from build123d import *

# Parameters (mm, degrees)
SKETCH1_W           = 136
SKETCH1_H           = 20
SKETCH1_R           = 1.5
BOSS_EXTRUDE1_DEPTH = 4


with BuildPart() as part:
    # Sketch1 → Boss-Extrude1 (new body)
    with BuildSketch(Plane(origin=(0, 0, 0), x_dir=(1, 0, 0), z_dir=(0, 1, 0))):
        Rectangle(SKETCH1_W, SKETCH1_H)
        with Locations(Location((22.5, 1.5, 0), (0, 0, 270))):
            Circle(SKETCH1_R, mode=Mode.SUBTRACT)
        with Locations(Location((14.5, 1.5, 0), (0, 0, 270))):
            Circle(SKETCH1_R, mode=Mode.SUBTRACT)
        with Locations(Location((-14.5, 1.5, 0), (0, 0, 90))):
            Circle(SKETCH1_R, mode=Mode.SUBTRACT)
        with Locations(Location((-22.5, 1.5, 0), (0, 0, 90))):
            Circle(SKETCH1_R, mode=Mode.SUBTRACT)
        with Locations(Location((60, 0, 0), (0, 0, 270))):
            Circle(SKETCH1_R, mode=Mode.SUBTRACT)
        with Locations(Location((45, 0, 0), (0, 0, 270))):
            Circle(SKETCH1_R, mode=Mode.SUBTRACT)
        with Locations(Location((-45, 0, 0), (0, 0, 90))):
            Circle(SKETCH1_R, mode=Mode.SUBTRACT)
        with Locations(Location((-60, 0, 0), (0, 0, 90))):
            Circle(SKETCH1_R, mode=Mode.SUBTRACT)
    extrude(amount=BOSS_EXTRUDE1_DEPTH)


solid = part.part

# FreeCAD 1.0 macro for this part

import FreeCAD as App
import Part
import Sketcher

V = App.Vector
Q = App.Units.Quantity


def add_polygon(sketch, points):
    """Adds a closed chain of lines whose ends are joined by coincident constraints."""
    first, n = sketch.GeometryCount, len(points)
    for a, b in zip(points, points[1:] + points[:1]):
        sketch.addGeometry(Part.LineSegment(App.Vector(*a, 0), App.Vector(*b, 0)), False)
    for i in range(n):
        sketch.addConstraint(Sketcher.Constraint("Coincident", first + i, 2, first + (i + 1) % n, 1))

doc = App.newDocument("Part")
body = doc.addObject("PartDesign::Body", "Body")

# Sketch on XZ plane
sketch1 = doc.addObject("Sketcher::SketchObject", "Sketch")
body.addObject(sketch1)
sketch1.AttachmentSupport = (doc.XZ_Plane, [""])
sketch1.MapMode = "FlatFace"
add_polygon(sketch1, [(-68, -10), (-68, 10), (68, 10), (68, -10)])  # lines 0-3
sketch1.addGeometry(Part.Circle(V(-60, 0, 0), V(0, 0, 1), 1.5), False)  # 4
sketch1.addGeometry(Part.Circle(V(-45, 0, 0), V(0, 0, 1), 1.5), False)  # 5
sketch1.addGeometry(Part.Circle(V(45, 0, 0), V(0, 0, 1), 1.5), False)  # 6
sketch1.addGeometry(Part.Circle(V(60, 0, 0), V(0, 0, 1), 1.5), False)  # 7
sketch1.addGeometry(Part.Circle(V(-22.5, -1.5, 0), V(0, 0, 1), 1.5), False)  # 8
sketch1.addGeometry(Part.Circle(V(-14.5, -1.5, 0), V(0, 0, 1), 1.5), False)  # 9
sketch1.addGeometry(Part.Circle(V(14.5, -1.5, 0), V(0, 0, 1), 1.5), False)  # 10
sketch1.addGeometry(Part.Circle(V(22.5, -1.5, 0), V(0, 0, 1), 1.5), False)  # 11
sketch1.addConstraint(Sketcher.Constraint("Vertical", 0))
sketch1.addConstraint(Sketcher.Constraint("Horizontal", 1))
sketch1.addConstraint(Sketcher.Constraint("Vertical", 2))
sketch1.addConstraint(Sketcher.Constraint("Horizontal", 3))
sketch1.addConstraint(Sketcher.Constraint("Equal", 4, 5))
sketch1.addConstraint(Sketcher.Constraint("Equal", 5, 6))
sketch1.addConstraint(Sketcher.Constraint("Equal", 6, 7))
sketch1.addConstraint(Sketcher.Constraint("Equal", 7, 8))
sketch1.addConstraint(Sketcher.Constraint("Equal", 8, 9))
sketch1.addConstraint(Sketcher.Constraint("Equal", 9, 10))
sketch1.addConstraint(Sketcher.Constraint("Equal", 10, 11))
sketch1.addConstraint(Sketcher.Constraint("Symmetric", 5, 3, 6, 3, -1, 1))
sketch1.addConstraint(Sketcher.Constraint("Symmetric", 4, 3, 7, 3, -1, 1))
sketch1.addConstraint(Sketcher.Constraint("Symmetric", 0, 2, 2, 2, -1, 1))
sketch1.addConstraint(Sketcher.Constraint("Symmetric", 9, 3, 10, 3, -2))
sketch1.addConstraint(Sketcher.Constraint("Symmetric", 8, 3, 11, 3, -2))
sketch1.addConstraint(Sketcher.Constraint("PointOnObject", 4, 3, -1))
sketch1.addConstraint(Sketcher.Constraint("PointOnObject", 5, 3, -1))
sketch1.addConstraint(Sketcher.Constraint("Horizontal", 8, 3, 9, 3))
sketch1.addConstraint(Sketcher.Constraint("Diameter", 4, Q("3 mm")))
sketch1.addConstraint(Sketcher.Constraint("DistanceX", 1, 1, 1, 2, Q("136 mm")))
sketch1.addConstraint(Sketcher.Constraint("DistanceY", 0, 1, 0, 2, Q("20 mm")))
sketch1.addConstraint(Sketcher.Constraint("DistanceX", 4, 3, -1, 1, Q("60 mm")))
sketch1.addConstraint(Sketcher.Constraint("DistanceX", 5, 3, -1, 1, Q("45 mm")))
sketch1.addConstraint(Sketcher.Constraint("DistanceX", 8, 3, 9, 3, Q("8 mm")))
sketch1.addConstraint(Sketcher.Constraint("DistanceX", 9, 3, 10, 3, Q("29 mm")))
sketch1.addConstraint(Sketcher.Constraint("DistanceY", 8, 3, -1, 1, Q("1.5 mm")))
pad1 = doc.addObject("PartDesign::Pad", "Pad")
body.addObject(pad1)
pad1.Profile = sketch1
pad1.Length = 4
pad1.Reversed = True

doc.recompute()
